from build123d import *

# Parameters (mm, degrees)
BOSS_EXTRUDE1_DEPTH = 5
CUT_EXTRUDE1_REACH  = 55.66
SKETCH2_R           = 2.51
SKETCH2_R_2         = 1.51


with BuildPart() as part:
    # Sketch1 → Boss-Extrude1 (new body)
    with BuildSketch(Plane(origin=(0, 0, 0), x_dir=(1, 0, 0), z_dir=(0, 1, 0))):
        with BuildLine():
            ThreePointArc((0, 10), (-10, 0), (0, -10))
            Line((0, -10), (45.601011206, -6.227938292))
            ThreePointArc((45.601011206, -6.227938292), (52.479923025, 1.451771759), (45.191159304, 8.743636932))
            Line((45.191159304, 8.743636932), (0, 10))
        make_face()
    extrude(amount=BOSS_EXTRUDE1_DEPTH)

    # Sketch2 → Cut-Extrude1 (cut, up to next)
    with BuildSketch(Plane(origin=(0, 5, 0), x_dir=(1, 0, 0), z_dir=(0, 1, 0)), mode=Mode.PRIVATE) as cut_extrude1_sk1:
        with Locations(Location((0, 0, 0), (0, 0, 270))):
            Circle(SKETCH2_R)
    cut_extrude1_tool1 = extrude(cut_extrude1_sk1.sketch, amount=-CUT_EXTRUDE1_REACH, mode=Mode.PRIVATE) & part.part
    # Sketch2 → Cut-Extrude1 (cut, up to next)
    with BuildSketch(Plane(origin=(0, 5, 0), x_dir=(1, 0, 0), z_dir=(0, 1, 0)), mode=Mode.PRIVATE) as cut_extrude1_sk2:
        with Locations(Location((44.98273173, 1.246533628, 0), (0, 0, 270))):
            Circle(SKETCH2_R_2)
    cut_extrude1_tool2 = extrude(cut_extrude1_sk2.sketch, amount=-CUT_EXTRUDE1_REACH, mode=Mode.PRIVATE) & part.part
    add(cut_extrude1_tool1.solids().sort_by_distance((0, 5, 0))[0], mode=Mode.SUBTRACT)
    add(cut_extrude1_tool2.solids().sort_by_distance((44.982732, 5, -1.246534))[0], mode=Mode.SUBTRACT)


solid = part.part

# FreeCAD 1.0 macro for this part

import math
import FreeCAD as App
import Part
import Sketcher
Q = App.Units.Quantity

doc = App.newDocument("Part")
body = doc.addObject("PartDesign::Body", "Body")

sketch1 = doc.addObject("Sketcher::SketchObject", "Sketch")
body.addObject(sketch1)
sketch1.AttachmentSupport = (doc.XZ_Plane, [""])
sketch1.MapMode = "FlatFace"
sketch1.addGeometry([
    Part.ArcOfCircle(Part.Circle(App.Vector(0, 0, 0), App.Vector(0, 0, 1), 10), math.radians(90), math.radians(270)),
    Part.LineSegment(App.Vector(0, 10, 0), App.Vector(45.601011, 6.227938, 0)),
    Part.ArcOfCircle(Part.Circle(App.Vector(44.982732, -1.246534, 0), App.Vector(0, 0, 1), 7.5), math.radians(-88.407526), math.radians(85.271326)),
    Part.LineSegment(App.Vector(45.191159, -8.743637, 0), App.Vector(0, -10, 0)),
], False)
sketch1.addConstraint([
    Sketcher.Constraint("Coincident", 0, 1, 1, 1),
    Sketcher.Constraint("Tangent", 1, 2, 2, 2),
    Sketcher.Constraint("Tangent", 2, 1, 3, 1),
    Sketcher.Constraint("Coincident", 3, 2, 0, 2),
    Sketcher.Constraint("Coincident", 0, 3, -1, 1),
    Sketcher.Constraint("PointOnObject", 0, 1, -2),
    Sketcher.Constraint("PointOnObject", 3, 2, -2),
    Sketcher.Constraint("Radius", 0, Q("10 mm")),
    Sketcher.Constraint("Radius", 2, Q("7.5 mm")),
    Sketcher.Constraint("Distance", 3, Q("45.20862 mm")),
    Sketcher.Constraint("DistanceX", -1, 1, 2, 3, Q("44.982732 mm")),
])
pad1 = doc.addObject("PartDesign::Pad", "Pad")
body.addObject(pad1)
pad1.Profile = sketch1
pad1.Length = 5
pad1.Reversed = True

sketch2 = doc.addObject("Sketcher::SketchObject", "Sketch001")
body.addObject(sketch2)
sketch2.AttachmentSupport = (doc.XZ_Plane, [""])
sketch2.MapMode = "FlatFace"
sketch2.AttachmentOffset = App.Placement(App.Vector(0, 0, -5), App.Rotation())
sketch2.addGeometry(Part.Circle(App.Vector(0, 0, 0), App.Vector(0, 0, 1), 2.51), False)
sketch2.addConstraint([
    Sketcher.Constraint("Coincident", 0, 3, -1, 1),
    Sketcher.Constraint("Diameter", 0, Q("5.02 mm")),
])
pocket1 = doc.addObject("PartDesign::Pocket", "Pocket")
body.addObject(pocket1)
pocket1.Profile = sketch2
pocket1.Type = "UpToFirst"
pocket1.Reversed = True

sketch3 = doc.addObject("Sketcher::SketchObject", "Sketch002")
body.addObject(sketch3)
sketch3.AttachmentSupport = (doc.XZ_Plane, [""])
sketch3.MapMode = "FlatFace"
sketch3.AttachmentOffset = App.Placement(App.Vector(0, 0, -5), App.Rotation())
sketch3.addGeometry(Part.Circle(App.Vector(44.982732, -1.246534, 0), App.Vector(0, 0, 1), 1.51), False)
sketch3.addConstraint([
    Sketcher.Constraint("Diameter", 0, Q("3.02 mm")),
    Sketcher.Constraint("DistanceX", -1, 1, 0, 3, Q("44.982732 mm")),
    Sketcher.Constraint("DistanceY", 0, 3, -1, 1, Q("1.246534 mm")),
])
pocket2 = doc.addObject("PartDesign::Pocket", "Pocket001")
body.addObject(pocket2)
pocket2.Profile = sketch3
pocket2.Type = "UpToFirst"
pocket2.Reversed = True

doc.recompute()
